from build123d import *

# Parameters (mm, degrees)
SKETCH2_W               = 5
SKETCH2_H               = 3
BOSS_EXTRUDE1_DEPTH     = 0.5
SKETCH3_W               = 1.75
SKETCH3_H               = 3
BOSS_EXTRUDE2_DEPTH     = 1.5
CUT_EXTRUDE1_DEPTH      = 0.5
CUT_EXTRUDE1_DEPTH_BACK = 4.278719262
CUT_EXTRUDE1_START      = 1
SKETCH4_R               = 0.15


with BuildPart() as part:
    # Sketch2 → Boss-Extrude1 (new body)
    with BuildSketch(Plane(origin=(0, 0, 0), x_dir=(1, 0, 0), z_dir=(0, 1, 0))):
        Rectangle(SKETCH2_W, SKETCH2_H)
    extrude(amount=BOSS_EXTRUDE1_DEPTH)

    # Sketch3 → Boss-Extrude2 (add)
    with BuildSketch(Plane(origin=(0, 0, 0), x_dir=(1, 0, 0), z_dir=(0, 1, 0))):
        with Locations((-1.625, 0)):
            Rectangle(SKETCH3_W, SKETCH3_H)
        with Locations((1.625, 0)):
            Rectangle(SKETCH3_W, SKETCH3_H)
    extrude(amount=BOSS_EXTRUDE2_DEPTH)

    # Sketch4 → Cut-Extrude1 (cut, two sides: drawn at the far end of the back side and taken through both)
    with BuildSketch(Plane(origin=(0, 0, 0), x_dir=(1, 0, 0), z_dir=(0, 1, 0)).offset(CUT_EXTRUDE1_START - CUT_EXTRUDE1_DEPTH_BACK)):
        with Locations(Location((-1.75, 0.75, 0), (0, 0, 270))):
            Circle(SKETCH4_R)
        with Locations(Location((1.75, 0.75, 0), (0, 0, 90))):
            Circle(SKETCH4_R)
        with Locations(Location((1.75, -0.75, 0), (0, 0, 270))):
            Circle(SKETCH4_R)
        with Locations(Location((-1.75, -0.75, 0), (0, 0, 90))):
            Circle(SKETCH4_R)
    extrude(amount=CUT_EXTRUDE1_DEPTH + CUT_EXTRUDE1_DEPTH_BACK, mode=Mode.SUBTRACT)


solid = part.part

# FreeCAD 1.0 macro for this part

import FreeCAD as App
import Part
import Sketcher

doc = App.newDocument("Part")
body = doc.addObject("PartDesign::Body", "Body")

sketch1 = body.newObject("Sketcher::SketchObject", "Sketch")
sketch1.AttachmentSupport = (doc.getObject("XZ_Plane"), [""])
sketch1.MapMode = "FlatFace"
sketch1.addGeometry(Part.LineSegment(App.Vector(-2.5, -1.5, 0), App.Vector(-2.5, 1.5, 0)), False)
sketch1.addGeometry(Part.LineSegment(App.Vector(-2.5, 1.5, 0), App.Vector(2.5, 1.5, 0)), False)
sketch1.addGeometry(Part.LineSegment(App.Vector(2.5, 1.5, 0), App.Vector(2.5, -1.5, 0)), False)
sketch1.addGeometry(Part.LineSegment(App.Vector(2.5, -1.5, 0), App.Vector(-2.5, -1.5, 0)), False)
sketch1.addConstraint(Sketcher.Constraint("Coincident", 0, 2, 1, 1))
sketch1.addConstraint(Sketcher.Constraint("Coincident", 1, 2, 2, 1))
sketch1.addConstraint(Sketcher.Constraint("Coincident", 2, 2, 3, 1))
sketch1.addConstraint(Sketcher.Constraint("Coincident", 3, 2, 0, 1))
sketch1.addConstraint(Sketcher.Constraint("Vertical", 0))
sketch1.addConstraint(Sketcher.Constraint("Horizontal", 1))
sketch1.addConstraint(Sketcher.Constraint("Vertical", 2))
sketch1.addConstraint(Sketcher.Constraint("Horizontal", 3))
sketch1.addConstraint(Sketcher.Constraint("Symmetric", 0, 2, 2, 2, -1, 1))
sketch1.addConstraint(Sketcher.Constraint("DistanceX", 1, 1, 1, 2, 5.0))
sketch1.addConstraint(Sketcher.Constraint("DistanceY", 0, 1, 0, 2, 3.0))
pad1 = body.newObject("PartDesign::Pad", "Pad")
pad1.Profile = sketch1
pad1.Length = 0.5
pad1.Reversed = True

sketch2 = body.newObject("Sketcher::SketchObject", "Sketch001")
sketch2.AttachmentSupport = (doc.getObject("XZ_Plane"), [""])
sketch2.MapMode = "FlatFace"
sketch2.addGeometry(Part.LineSegment(App.Vector(-2.5, -1.5, 0), App.Vector(-2.5, 1.5, 0)), False)
sketch2.addGeometry(Part.LineSegment(App.Vector(-2.5, 1.5, 0), App.Vector(-0.8, 1.5, 0)), False)
sketch2.addGeometry(Part.LineSegment(App.Vector(-0.8, 1.5, 0), App.Vector(-0.8, -1.5, 0)), False)
sketch2.addGeometry(Part.LineSegment(App.Vector(-0.8, -1.5, 0), App.Vector(-2.5, -1.5, 0)), False)
sketch2.addGeometry(Part.LineSegment(App.Vector(0.8, -1.5, 0), App.Vector(0.8, 1.5, 0)), False)
sketch2.addGeometry(Part.LineSegment(App.Vector(0.8, 1.5, 0), App.Vector(2.5, 1.5, 0)), False)
sketch2.addGeometry(Part.LineSegment(App.Vector(2.5, 1.5, 0), App.Vector(2.5, -1.5, 0)), False)
sketch2.addGeometry(Part.LineSegment(App.Vector(2.5, -1.5, 0), App.Vector(0.8, -1.5, 0)), False)
sketch2.addConstraint(Sketcher.Constraint("Coincident", 0, 2, 1, 1))
sketch2.addConstraint(Sketcher.Constraint("Coincident", 1, 2, 2, 1))
sketch2.addConstraint(Sketcher.Constraint("Coincident", 2, 2, 3, 1))
sketch2.addConstraint(Sketcher.Constraint("Coincident", 3, 2, 0, 1))
sketch2.addConstraint(Sketcher.Constraint("Coincident", 4, 2, 5, 1))
sketch2.addConstraint(Sketcher.Constraint("Coincident", 5, 2, 6, 1))
sketch2.addConstraint(Sketcher.Constraint("Coincident", 6, 2, 7, 1))
sketch2.addConstraint(Sketcher.Constraint("Coincident", 7, 2, 4, 1))
sketch2.addConstraint(Sketcher.Constraint("Vertical", 0))
sketch2.addConstraint(Sketcher.Constraint("Horizontal", 1))
sketch2.addConstraint(Sketcher.Constraint("Vertical", 2))
sketch2.addConstraint(Sketcher.Constraint("Horizontal", 3))
sketch2.addConstraint(Sketcher.Constraint("Vertical", 4))
sketch2.addConstraint(Sketcher.Constraint("Horizontal", 5))
sketch2.addConstraint(Sketcher.Constraint("Vertical", 6))
sketch2.addConstraint(Sketcher.Constraint("Horizontal", 7))
sketch2.addConstraint(Sketcher.Constraint("Symmetric", 2, 2, 4, 2, -1, 1))
sketch2.addConstraint(Sketcher.Constraint("Symmetric", 0, 2, 6, 2, -1, 1))
sketch2.addConstraint(Sketcher.Constraint("Horizontal", 1, 2, 4, 2))
sketch2.addConstraint(Sketcher.Constraint("DistanceY", 0, 1, 0, 2, 3.0))
sketch2.addConstraint(Sketcher.Constraint("DistanceX", 0, 2, 5, 2, 5.0))
sketch2.addConstraint(Sketcher.Constraint("DistanceX", 1, 1, 1, 2, 1.75))
pad2 = body.newObject("PartDesign::Pad", "Pad001")
pad2.Profile = sketch2
pad2.Length = 1.5
pad2.Reversed = True

sketch3 = body.newObject("Sketcher::SketchObject", "Sketch002")
sketch3.AttachmentSupport = (doc.getObject("XZ_Plane"), [""])
sketch3.MapMode = "FlatFace"
sketch3.AttachmentOffset = App.Placement(App.Vector(0, 0, -1), App.Rotation())
sketch3.addGeometry(Part.Circle(App.Vector(-1.75, -0.75, 0), App.Vector(0, 0, 1), 0.15), False)
sketch3.addGeometry(Part.Circle(App.Vector(1.75, -0.75, 0), App.Vector(0, 0, 1), 0.15), False)
sketch3.addGeometry(Part.Circle(App.Vector(1.75, 0.75, 0), App.Vector(0, 0, 1), 0.15), False)
sketch3.addGeometry(Part.Circle(App.Vector(-1.75, 0.75, 0), App.Vector(0, 0, 1), 0.15), False)
sketch3.addConstraint(Sketcher.Constraint("Equal", 0, 1))
sketch3.addConstraint(Sketcher.Constraint("Equal", 1, 2))
sketch3.addConstraint(Sketcher.Constraint("Equal", 2, 3))
sketch3.addConstraint(Sketcher.Constraint("Symmetric", 0, 3, 2, 3, -1, 1))
sketch3.addConstraint(Sketcher.Constraint("Symmetric", 1, 3, 3, 3, -1, 1))
sketch3.addConstraint(Sketcher.Constraint("Symmetric", 0, 3, 1, 3, -2))
sketch3.addConstraint(Sketcher.Constraint("Diameter", 0, 0.3))
sketch3.addConstraint(Sketcher.Constraint("DistanceX", 0, 3, 1, 3, 3.5))
sketch3.addConstraint(Sketcher.Constraint("DistanceY", 1, 3, 2, 3, 1.5))
pocket1 = body.newObject("PartDesign::Pocket", "Pocket")
pocket1.Profile = sketch3
pocket1.Type = "ThroughAll"
pocket1.Midplane = True

doc.recompute()
